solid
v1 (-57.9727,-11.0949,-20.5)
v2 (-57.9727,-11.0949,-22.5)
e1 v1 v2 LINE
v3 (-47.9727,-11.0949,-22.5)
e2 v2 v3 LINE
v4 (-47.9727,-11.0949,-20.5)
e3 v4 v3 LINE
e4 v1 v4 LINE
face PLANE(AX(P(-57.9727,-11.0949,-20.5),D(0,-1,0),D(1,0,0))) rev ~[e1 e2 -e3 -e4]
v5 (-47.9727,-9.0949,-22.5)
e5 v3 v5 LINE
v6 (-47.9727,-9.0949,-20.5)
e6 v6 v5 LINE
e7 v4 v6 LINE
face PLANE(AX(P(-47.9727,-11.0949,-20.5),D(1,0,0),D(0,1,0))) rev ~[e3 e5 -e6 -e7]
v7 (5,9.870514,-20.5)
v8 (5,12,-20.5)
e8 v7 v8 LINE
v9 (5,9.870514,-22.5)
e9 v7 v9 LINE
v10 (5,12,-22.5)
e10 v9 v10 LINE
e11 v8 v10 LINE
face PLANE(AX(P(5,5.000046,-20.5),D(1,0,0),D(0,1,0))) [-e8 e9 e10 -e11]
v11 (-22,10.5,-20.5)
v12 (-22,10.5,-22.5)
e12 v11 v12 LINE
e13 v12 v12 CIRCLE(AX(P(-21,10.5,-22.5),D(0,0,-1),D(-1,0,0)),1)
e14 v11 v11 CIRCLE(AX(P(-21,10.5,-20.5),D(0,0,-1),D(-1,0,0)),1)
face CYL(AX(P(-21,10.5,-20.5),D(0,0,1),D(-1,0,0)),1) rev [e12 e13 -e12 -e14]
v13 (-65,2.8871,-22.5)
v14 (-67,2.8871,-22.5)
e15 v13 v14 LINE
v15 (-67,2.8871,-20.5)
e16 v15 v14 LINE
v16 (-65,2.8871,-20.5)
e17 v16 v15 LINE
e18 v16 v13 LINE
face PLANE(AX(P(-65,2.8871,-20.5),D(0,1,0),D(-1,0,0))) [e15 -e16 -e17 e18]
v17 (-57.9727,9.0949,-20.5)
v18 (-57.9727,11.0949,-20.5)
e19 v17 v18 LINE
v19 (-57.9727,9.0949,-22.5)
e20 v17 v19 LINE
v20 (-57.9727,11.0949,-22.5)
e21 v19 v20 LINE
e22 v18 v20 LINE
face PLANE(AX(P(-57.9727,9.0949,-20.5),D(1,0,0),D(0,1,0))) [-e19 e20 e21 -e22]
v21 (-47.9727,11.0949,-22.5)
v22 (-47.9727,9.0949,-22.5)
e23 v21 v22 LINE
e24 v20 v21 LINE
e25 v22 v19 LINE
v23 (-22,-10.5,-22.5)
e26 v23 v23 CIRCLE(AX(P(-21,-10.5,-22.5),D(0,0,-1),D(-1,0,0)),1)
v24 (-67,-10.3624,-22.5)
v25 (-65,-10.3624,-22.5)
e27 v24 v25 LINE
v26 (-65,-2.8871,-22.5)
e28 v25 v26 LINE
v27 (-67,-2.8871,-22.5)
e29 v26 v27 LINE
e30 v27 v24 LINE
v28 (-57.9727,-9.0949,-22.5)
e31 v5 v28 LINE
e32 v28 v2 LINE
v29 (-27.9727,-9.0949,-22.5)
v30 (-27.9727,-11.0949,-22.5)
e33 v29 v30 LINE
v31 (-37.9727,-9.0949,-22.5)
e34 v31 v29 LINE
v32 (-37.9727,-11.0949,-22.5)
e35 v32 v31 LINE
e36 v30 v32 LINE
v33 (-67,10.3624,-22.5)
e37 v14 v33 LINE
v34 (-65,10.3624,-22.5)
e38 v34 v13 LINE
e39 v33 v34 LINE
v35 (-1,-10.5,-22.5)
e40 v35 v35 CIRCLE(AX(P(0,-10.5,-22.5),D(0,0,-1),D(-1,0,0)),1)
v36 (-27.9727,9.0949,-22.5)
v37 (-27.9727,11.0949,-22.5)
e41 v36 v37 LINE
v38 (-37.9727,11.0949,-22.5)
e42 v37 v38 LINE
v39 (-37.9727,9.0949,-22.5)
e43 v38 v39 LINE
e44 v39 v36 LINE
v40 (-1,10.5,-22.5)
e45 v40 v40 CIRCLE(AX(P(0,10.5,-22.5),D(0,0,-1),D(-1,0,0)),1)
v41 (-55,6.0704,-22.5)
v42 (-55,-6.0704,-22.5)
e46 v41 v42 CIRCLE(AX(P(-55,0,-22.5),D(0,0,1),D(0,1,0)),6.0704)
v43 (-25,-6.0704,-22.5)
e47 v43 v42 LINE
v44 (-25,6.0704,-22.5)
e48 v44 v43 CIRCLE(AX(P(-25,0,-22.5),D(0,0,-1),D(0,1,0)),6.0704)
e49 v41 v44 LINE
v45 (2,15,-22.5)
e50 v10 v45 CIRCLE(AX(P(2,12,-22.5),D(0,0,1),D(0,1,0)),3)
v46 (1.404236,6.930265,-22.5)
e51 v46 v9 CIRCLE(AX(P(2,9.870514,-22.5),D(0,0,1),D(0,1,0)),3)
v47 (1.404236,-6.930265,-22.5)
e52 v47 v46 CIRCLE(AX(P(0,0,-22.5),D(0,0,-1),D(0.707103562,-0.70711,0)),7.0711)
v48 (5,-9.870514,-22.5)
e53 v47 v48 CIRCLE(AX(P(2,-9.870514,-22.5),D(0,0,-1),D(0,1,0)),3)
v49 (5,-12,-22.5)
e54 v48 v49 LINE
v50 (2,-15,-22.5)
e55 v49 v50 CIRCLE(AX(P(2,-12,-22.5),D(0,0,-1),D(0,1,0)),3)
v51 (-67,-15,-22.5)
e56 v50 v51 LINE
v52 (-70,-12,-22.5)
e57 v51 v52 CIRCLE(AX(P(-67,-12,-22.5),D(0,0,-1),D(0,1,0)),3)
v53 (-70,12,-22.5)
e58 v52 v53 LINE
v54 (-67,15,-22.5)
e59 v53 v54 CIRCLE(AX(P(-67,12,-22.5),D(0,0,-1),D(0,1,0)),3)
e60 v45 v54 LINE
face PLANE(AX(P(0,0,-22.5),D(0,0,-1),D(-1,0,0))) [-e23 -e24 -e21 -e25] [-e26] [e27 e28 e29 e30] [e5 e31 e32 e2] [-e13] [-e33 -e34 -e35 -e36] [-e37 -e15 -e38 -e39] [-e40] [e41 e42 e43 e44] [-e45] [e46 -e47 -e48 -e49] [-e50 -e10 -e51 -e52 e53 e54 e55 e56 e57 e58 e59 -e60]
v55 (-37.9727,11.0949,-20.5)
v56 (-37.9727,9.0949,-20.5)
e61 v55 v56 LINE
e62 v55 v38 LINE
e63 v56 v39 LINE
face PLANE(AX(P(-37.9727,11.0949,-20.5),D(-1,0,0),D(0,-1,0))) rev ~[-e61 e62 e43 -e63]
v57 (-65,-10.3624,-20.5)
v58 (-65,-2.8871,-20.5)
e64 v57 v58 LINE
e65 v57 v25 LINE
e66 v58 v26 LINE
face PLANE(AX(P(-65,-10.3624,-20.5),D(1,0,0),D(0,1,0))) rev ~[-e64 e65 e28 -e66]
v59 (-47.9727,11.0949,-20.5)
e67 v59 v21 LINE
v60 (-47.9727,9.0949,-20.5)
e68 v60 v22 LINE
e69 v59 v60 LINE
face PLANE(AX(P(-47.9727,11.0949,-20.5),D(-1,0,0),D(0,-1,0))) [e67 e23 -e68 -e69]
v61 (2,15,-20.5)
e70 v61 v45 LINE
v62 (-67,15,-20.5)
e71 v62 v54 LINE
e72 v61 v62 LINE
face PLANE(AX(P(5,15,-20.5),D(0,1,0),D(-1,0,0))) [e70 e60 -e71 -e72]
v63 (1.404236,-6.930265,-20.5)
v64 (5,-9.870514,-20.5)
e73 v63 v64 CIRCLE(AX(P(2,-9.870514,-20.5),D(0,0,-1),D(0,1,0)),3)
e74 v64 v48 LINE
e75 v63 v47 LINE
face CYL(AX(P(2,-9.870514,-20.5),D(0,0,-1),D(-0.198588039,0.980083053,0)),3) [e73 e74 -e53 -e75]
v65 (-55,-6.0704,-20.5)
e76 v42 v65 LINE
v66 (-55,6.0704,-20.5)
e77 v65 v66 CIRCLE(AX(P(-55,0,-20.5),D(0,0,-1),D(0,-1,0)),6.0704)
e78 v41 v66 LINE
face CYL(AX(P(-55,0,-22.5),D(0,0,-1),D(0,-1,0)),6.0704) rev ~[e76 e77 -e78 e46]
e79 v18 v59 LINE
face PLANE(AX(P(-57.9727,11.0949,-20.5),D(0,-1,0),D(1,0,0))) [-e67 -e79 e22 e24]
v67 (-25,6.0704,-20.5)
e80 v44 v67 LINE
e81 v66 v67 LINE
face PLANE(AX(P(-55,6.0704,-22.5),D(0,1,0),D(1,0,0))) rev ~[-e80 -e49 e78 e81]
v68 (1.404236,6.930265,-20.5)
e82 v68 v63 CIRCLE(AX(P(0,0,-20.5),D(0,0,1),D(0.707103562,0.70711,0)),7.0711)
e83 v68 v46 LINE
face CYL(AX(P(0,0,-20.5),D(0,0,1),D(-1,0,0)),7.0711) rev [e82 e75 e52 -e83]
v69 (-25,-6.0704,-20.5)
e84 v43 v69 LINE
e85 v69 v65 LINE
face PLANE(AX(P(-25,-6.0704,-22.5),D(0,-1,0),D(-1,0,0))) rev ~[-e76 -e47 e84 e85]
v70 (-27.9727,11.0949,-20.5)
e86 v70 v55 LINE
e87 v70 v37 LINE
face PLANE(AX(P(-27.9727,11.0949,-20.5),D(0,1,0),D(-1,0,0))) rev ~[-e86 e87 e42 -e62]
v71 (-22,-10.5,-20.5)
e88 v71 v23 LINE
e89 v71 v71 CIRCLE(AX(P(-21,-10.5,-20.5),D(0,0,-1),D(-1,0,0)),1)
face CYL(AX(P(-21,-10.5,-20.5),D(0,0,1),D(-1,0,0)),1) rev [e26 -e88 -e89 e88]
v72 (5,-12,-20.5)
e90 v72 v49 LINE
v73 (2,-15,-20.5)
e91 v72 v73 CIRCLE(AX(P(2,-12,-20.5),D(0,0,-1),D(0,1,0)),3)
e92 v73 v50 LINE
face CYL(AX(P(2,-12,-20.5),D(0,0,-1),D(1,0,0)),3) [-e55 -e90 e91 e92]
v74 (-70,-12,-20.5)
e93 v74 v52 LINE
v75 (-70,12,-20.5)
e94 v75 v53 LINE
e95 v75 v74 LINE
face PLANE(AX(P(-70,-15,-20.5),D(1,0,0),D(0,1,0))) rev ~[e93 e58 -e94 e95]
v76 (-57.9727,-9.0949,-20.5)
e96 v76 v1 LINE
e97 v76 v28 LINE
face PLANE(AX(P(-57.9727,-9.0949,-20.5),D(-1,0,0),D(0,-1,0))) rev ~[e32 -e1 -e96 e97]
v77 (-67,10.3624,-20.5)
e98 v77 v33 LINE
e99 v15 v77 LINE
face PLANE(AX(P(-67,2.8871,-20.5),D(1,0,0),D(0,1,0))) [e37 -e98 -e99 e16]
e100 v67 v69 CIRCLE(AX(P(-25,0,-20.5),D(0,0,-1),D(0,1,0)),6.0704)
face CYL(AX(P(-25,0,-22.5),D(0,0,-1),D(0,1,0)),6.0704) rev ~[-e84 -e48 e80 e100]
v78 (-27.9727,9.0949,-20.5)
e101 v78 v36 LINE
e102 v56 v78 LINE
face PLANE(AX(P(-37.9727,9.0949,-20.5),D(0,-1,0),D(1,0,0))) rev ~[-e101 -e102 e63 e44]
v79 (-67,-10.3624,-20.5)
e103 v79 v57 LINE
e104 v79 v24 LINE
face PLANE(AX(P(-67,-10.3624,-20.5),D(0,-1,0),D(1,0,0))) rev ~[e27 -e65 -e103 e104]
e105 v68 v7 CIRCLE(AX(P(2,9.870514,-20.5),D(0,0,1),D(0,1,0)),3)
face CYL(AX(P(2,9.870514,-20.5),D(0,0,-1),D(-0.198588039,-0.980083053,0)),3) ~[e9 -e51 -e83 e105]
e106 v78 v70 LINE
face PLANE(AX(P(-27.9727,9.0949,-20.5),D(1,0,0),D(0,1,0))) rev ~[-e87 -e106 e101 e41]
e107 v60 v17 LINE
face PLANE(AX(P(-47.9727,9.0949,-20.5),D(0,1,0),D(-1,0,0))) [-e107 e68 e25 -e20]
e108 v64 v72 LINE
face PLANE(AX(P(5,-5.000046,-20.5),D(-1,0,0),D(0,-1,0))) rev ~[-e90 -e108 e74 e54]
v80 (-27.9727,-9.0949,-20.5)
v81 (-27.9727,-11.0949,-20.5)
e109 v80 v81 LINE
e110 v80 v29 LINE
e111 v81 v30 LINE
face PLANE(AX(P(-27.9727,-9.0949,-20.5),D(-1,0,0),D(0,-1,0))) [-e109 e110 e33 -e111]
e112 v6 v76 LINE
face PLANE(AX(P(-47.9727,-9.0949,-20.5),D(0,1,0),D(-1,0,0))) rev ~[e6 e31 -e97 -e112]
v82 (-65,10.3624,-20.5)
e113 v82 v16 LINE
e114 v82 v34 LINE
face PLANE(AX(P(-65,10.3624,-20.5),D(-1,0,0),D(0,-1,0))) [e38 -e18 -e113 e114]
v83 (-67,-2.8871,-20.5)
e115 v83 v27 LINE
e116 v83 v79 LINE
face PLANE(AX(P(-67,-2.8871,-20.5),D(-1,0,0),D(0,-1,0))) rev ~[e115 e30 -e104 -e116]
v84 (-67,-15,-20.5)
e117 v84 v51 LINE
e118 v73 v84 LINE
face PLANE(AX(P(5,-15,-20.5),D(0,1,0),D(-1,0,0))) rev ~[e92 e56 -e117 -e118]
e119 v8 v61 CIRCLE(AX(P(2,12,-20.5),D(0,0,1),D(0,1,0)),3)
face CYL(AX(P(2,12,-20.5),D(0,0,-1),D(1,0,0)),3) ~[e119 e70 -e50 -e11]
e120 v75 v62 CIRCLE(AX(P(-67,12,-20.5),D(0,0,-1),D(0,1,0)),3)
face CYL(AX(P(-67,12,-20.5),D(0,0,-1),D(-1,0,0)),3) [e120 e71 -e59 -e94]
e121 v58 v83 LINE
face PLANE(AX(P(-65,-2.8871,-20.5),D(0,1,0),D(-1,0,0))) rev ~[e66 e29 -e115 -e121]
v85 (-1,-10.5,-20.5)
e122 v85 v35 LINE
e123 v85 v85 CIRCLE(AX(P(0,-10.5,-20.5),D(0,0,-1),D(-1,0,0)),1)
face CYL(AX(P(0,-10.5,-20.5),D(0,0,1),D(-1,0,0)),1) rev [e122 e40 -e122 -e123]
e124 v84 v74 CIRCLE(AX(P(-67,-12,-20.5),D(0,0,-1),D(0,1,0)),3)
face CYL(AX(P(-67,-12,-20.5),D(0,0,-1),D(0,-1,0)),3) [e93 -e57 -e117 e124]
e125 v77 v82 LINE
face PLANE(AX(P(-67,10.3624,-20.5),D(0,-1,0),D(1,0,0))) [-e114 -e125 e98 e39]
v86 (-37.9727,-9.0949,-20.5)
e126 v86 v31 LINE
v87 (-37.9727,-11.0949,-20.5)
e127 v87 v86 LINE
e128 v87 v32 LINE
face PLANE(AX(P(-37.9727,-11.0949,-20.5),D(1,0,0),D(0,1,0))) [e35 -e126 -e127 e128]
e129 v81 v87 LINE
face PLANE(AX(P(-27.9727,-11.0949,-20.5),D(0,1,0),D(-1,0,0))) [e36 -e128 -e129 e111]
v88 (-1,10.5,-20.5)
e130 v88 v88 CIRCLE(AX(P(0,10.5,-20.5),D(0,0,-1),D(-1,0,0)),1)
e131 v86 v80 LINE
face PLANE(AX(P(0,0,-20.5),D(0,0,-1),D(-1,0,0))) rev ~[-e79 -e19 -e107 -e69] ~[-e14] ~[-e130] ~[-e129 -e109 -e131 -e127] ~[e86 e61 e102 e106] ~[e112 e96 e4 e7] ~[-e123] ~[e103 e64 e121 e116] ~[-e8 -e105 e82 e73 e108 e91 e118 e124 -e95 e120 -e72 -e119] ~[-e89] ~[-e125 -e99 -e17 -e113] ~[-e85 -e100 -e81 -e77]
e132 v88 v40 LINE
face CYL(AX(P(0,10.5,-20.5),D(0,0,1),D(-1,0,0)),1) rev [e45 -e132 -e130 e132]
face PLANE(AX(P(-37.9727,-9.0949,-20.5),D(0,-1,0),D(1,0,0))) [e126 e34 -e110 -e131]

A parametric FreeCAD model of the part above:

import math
import FreeCAD as App
import Part
import Sketcher

V = App.Vector
Q = App.Units.Quantity


def edges_at(feature, points):
    """Names of the edges that pass closest to the given points."""
    edges = feature.Shape.Edges
    near = lambda p: min(range(len(edges)), key=lambda i: edges[i].distToShape(Part.Vertex(*p))[0])
    return sorted({f"Edge{near(p) + 1}" for p in points})


def add_polygon(sketch, points):
    """Adds a closed chain of lines whose ends are joined by coincident constraints."""
    first, n = sketch.GeometryCount, len(points)
    for a, b in zip(points, points[1:] + points[:1]):
        sketch.addGeometry(Part.LineSegment(App.Vector(*a, 0), App.Vector(*b, 0)), False)
    for i in range(n):
        sketch.addConstraint(Sketcher.Constraint("Coincident", first + i, 2, first + (i + 1) % n, 1))

doc = App.newDocument("Part")
params = doc.addObject("Spreadsheet::Sheet", "Params")
for row, (alias, value) in enumerate([
    ("sketch1_diameter", "2 mm"),
    ("sketch1_width", "75 mm"),
    ("sketch1_width2", "10 mm"),
    ("sketch1_width3", "2 mm"),
    ("pad1_length", "2 mm"),
    ("sketch2_width", "30 mm"),
    ("pocket1_length", "2 mm"),
    ("fillet_radius", "3 mm"),
], start=1):
    params.set(f"A{row}", alias)
    params.set(f"B{row}", "=" + value)
    params.setAlias(f"B{row}", alias)

body = doc.addObject("PartDesign::Body", "Body")

sketch1 = body.newObject("Sketcher::SketchObject", "Sketch")
sketch1.AttachmentSupport = (doc.getObject("XY_Plane"), [""])
sketch1.MapMode = "FlatFace"
sketch1.AttachmentOffset = App.Placement(V(0, 0, -20.5), App.Rotation())
sketch1.addGeometry(Part.ArcOfCircle(Part.Circle(V(0, 0, 0), V(0, 0, 1), 7.1), math.radians(45), math.radians(315)), False)
sketch1.addGeometry(Part.LineSegment(V(5, -5, 0), V(5, -15, 0)), False)
sketch1.addGeometry(Part.LineSegment(V(5, -15, 0), V(-70, -15, 0)), False)
sketch1.addGeometry(Part.LineSegment(V(-70, -15, 0), V(-70, 15, 0)), False)
sketch1.addGeometry(Part.LineSegment(V(-70, 15, 0), V(5, 15, 0)), False)
sketch1.addGeometry(Part.LineSegment(V(5, 15, 0), V(5, 5, 0)), False)
sketch1.addGeometry(Part.Circle(V(0, -10.5, 0), V(0, 0, 1), 1), False)
sketch1.addGeometry(Part.Circle(V(-21, -10.5, 0), V(0, 0, 1), 1), False)
add_polygon(sketch1, [(-38, -9.1), (-38, -11.1), (-28, -11.1), (-28, -9.1)])
add_polygon(sketch1, [(-58, -11.1), (-48, -11.1), (-48, -9.1), (-58, -9.1)])
add_polygon(sketch1, [(-67, -2.9), (-67, -10.4), (-65, -10.4), (-65, -2.9)])
sketch1.addGeometry(Part.Circle(V(0, 10.5, 0), V(0, 0, 1), 1), False)
sketch1.addGeometry(Part.Circle(V(-21, 10.5, 0), V(0, 0, 1), 1), False)
add_polygon(sketch1, [(-65, 10.4), (-67, 10.4), (-67, 2.9), (-65, 2.9)])
add_polygon(sketch1, [(-28, 9.1), (-28, 11.1), (-38, 11.1), (-38, 9.1)])
add_polygon(sketch1, [(-48, 11.1), (-58, 11.1), (-58, 9.1), (-48, 9.1)])
sketch1.addConstraint(Sketcher.Constraint("Coincident", 0, 2, 1, 1))
sketch1.addConstraint(Sketcher.Constraint("Coincident", 1, 2, 2, 1))
sketch1.addConstraint(Sketcher.Constraint("Coincident", 2, 2, 3, 1))
sketch1.addConstraint(Sketcher.Constraint("Coincident", 3, 2, 4, 1))
sketch1.addConstraint(Sketcher.Constraint("Coincident", 4, 2, 5, 1))
sketch1.addConstraint(Sketcher.Constraint("Coincident", 5, 2, 0, 1))
sketch1.addConstraint(Sketcher.Constraint("Vertical", 1))
sketch1.addConstraint(Sketcher.Constraint("Horizontal", 2))
sketch1.addConstraint(Sketcher.Constraint("Vertical", 3))
sketch1.addConstraint(Sketcher.Constraint("Horizontal", 4))
sketch1.addConstraint(Sketcher.Constraint("Vertical", 5))
sketch1.addConstraint(Sketcher.Constraint("Vertical", 8))
sketch1.addConstraint(Sketcher.Constraint("Horizontal", 9))
sketch1.addConstraint(Sketcher.Constraint("Vertical", 10))
sketch1.addConstraint(Sketcher.Constraint("Horizontal", 11))
sketch1.addConstraint(Sketcher.Constraint("Horizontal", 12))
sketch1.addConstraint(Sketcher.Constraint("Vertical", 13))
sketch1.addConstraint(Sketcher.Constraint("Horizontal", 14))
sketch1.addConstraint(Sketcher.Constraint("Vertical", 15))
sketch1.addConstraint(Sketcher.Constraint("Vertical", 16))
sketch1.addConstraint(Sketcher.Constraint("Horizontal", 17))
sketch1.addConstraint(Sketcher.Constraint("Vertical", 18))
sketch1.addConstraint(Sketcher.Constraint("Horizontal", 19))
sketch1.addConstraint(Sketcher.Constraint("Horizontal", 22))
sketch1.addConstraint(Sketcher.Constraint("Vertical", 23))
sketch1.addConstraint(Sketcher.Constraint("Horizontal", 24))
sketch1.addConstraint(Sketcher.Constraint("Vertical", 25))
sketch1.addConstraint(Sketcher.Constraint("Vertical", 26))
sketch1.addConstraint(Sketcher.Constraint("Horizontal", 27))
sketch1.addConstraint(Sketcher.Constraint("Vertical", 28))
sketch1.addConstraint(Sketcher.Constraint("Horizontal", 29))
sketch1.addConstraint(Sketcher.Constraint("Horizontal", 30))
sketch1.addConstraint(Sketcher.Constraint("Vertical", 31))
sketch1.addConstraint(Sketcher.Constraint("Horizontal", 32))
sketch1.addConstraint(Sketcher.Constraint("Vertical", 33))
sketch1.addConstraint(Sketcher.Constraint("Coincident", 0, 3, -1, 1))
sketch1.addConstraint(Sketcher.Constraint("Equal", 6, 7))
sketch1.addConstraint(Sketcher.Constraint("Equal", 7, 20))
sketch1.addConstraint(Sketcher.Constraint("Equal", 20, 21))
sketch1.addConstraint(Sketcher.Constraint("Symmetric", 6, 3, 20, 3, -1, 1))
sketch1.addConstraint(Sketcher.Constraint("Symmetric", 7, 3, 21, 3, -1))
sketch1.addConstraint(Sketcher.Constraint("Symmetric", 1, 2, 4, 2, -1))
sketch1.addConstraint(Sketcher.Constraint("Symmetric", 16, 2, 22, 2, -1))
sketch1.addConstraint(Sketcher.Constraint("Symmetric", 18, 2, 24, 2, -1))
sketch1.addConstraint(Sketcher.Constraint("Symmetric", 9, 2, 26, 2, -1))
sketch1.addConstraint(Sketcher.Constraint("Symmetric", 11, 2, 28, 2, -1))
sketch1.addConstraint(Sketcher.Constraint("Symmetric", 15, 2, 30, 2, -1))
sketch1.addConstraint(Sketcher.Constraint("Symmetric", 13, 2, 32, 2, -1))
sketch1.addConstraint(Sketcher.Constraint("PointOnObject", 6, 3, -2))
sketch1.addConstraint(Sketcher.Constraint("Horizontal", 6, 3, 7, 3))
sketch1.addConstraint(Sketcher.Constraint("Horizontal", 9, 2, 12, 2))
sketch1.addConstraint(Sketcher.Constraint("Horizontal", 11, 2, 13, 2))
sketch1.addConstraint(Sketcher.Constraint("Equal", 11, 12))
sketch1.addConstraint(Sketcher.Constraint("Equal", 32, 1))
sketch1.addConstraint(Sketcher.Constraint("Equal", 24, 8))
sketch1.addConstraint(Sketcher.Constraint("Diameter", 6, Q("2 mm")))
sketch1.addConstraint(Sketcher.Constraint("DistanceX", 2, 2, 2, 1, Q("75 mm")))
sketch1.addConstraint(Sketcher.Constraint("DistanceX", 9, 1, 9, 2, Q("10 mm")))
sketch1.addConstraint(Sketcher.Constraint("DistanceX", 17, 1, 17, 2, Q("2 mm")))
sketch1.addConstraint(Sketcher.Constraint("DistanceY", 0, 2, 5, 2, Q("10 mm")))
sketch1.addConstraint(Sketcher.Constraint("DistanceX", 12, 2, 8, 2, Q("10 mm")))
sketch1.addConstraint(Sketcher.Constraint("DistanceX", 2, 2, 16, 2, Q("3 mm")))
sketch1.addConstraint(Sketcher.Constraint("DistanceX", 7, 3, -1, 1, Q("21 mm")))
sketch1.addConstraint(Sketcher.Constraint("DistanceX", -1, 1, 0, 2, Q("5 mm")))
sketch1.addConstraint(Sketcher.Constraint("DistanceY", 6, 3, 20, 3, Q("21 mm")))
sketch1.addConstraint(Sketcher.Constraint("DistanceY", 16, 2, 16, 1, Q("7.4753 mm")))
sketch1.addConstraint(Sketcher.Constraint("DistanceY", 8, 2, -1, 1, Q("11.095 mm")))
sketch1.addConstraint(Sketcher.Constraint("DistanceY", 18, 2, -1, 1, Q("2.887 mm")))
sketch1.addConstraint(Sketcher.Constraint("DistanceX", 8, 2, -1, 1, Q("37.9727 mm")))
sketch1.setExpression("Constraints[79]", "Params.sketch1_diameter")
sketch1.setExpression("Constraints[80]", "Params.sketch1_width")
sketch1.setExpression("Constraints[81]", "Params.sketch1_width2")
sketch1.setExpression("Constraints[82]", "Params.sketch1_width3")
pad1 = body.newObject("PartDesign::Pad", "Pad")
pad1.Profile = sketch1
pad1.setExpression("Length", "Params.pad1_length")
pad1.Reversed = True

sketch2 = body.newObject("Sketcher::SketchObject", "Sketch001")
sketch2.AttachmentSupport = (doc.getObject("XY_Plane"), [""])
sketch2.MapMode = "FlatFace"
sketch2.AttachmentOffset = App.Placement(V(0, 0, -22.5), App.Rotation())
sketch2.addGeometry(Part.ArcOfCircle(Part.Circle(V(-25, 0, 0), V(0, 0, 1), 6), math.radians(-90), math.radians(90)), False)
sketch2.addGeometry(Part.LineSegment(V(-25, -6, 0), V(-55, -6, 0)), False)
sketch2.addGeometry(Part.ArcOfCircle(Part.Circle(V(-55, 0, 0), V(0, 0, 1), 6), math.radians(90), math.radians(270)), False)
sketch2.addGeometry(Part.LineSegment(V(-55, 6, 0), V(-25, 6, 0)), False)
sketch2.addConstraint(Sketcher.Constraint("Tangent", 0, 1, 1, 1))
sketch2.addConstraint(Sketcher.Constraint("Tangent", 1, 2, 2, 2))
sketch2.addConstraint(Sketcher.Constraint("Tangent", 2, 1, 3, 1))
sketch2.addConstraint(Sketcher.Constraint("Tangent", 3, 2, 0, 2))
sketch2.addConstraint(Sketcher.Constraint("Horizontal", 1))
sketch2.addConstraint(Sketcher.Constraint("Horizontal", 3))
sketch2.addConstraint(Sketcher.Constraint("PointOnObject", 0, 3, -1))
sketch2.addConstraint(Sketcher.Constraint("DistanceX", 1, 2, 1, 1, Q("30 mm")))
sketch2.addConstraint(Sketcher.Constraint("DistanceX", 0, 3, -1, 1, Q("25 mm")))
sketch2.addConstraint(Sketcher.Constraint("Radius", 0, Q("6.0704 mm")))
sketch2.setExpression("Constraints[7]", "Params.sketch2_width")
pocket1 = body.newObject("PartDesign::Pocket", "Pocket")
pocket1.Profile = sketch2
pocket1.setExpression("Length", "Params.pocket1_length")
pocket1.Reversed = True
doc.recompute()

fillet = body.newObject("PartDesign::Fillet", "Fillet")
fillet.Base = (pocket1, edges_at(pocket1, [
    (5, 15, -21.5),
    (5, 5, -21.5),
    (5, -5, -21.5),
    (5, -15, -21.5),
    (-70, 15, -21.5),
    (-70, -15, -21.5),
]))
fillet.setExpression("Radius", "Params.fillet_radius")

doc.recompute()
